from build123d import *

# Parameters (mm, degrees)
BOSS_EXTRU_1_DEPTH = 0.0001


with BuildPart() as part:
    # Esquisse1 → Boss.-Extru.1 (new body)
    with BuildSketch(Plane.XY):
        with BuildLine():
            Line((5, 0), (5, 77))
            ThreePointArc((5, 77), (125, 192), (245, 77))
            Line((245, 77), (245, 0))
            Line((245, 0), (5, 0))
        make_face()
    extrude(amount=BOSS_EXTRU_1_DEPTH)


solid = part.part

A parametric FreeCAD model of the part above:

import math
import FreeCAD as App
import Part
import Sketcher

doc = App.newDocument("Part")
body = doc.addObject("PartDesign::Body", "Body")

sketch1 = doc.addObject("Sketcher::SketchObject", "Sketch")
body.addObject(sketch1)
sketch1.AttachmentSupport = (doc.XY_Plane, [""])
sketch1.MapMode = "FlatFace"
sketch1.addGeometry(Part.LineSegment(App.Vector(5, 77, 0), App.Vector(5, 0, 0)), False)
sketch1.addGeometry(Part.LineSegment(App.Vector(5, 0, 0), App.Vector(245, 0, 0)), False)
sketch1.addGeometry(Part.LineSegment(App.Vector(245, 0, 0), App.Vector(245, 77, 0)), False)
sketch1.addGeometry(Part.ArcOfCircle(Part.Circle(App.Vector(125, 72, 0), App.Vector(0, 0, 1), 120), math.radians(2), math.radians(178)), False)
sketch1.addConstraint(Sketcher.Constraint("Coincident", 0, 2, 1, 1))
sketch1.addConstraint(Sketcher.Constraint("Coincident", 1, 2, 2, 1))
sketch1.addConstraint(Sketcher.Constraint("Coincident", 2, 2, 3, 1))
sketch1.addConstraint(Sketcher.Constraint("Coincident", 3, 2, 0, 1))
sketch1.addConstraint(Sketcher.Constraint("Vertical", 0))
sketch1.addConstraint(Sketcher.Constraint("Horizontal", 1))
sketch1.addConstraint(Sketcher.Constraint("Vertical", 2))
sketch1.addConstraint(Sketcher.Constraint("PointOnObject", 0, 2, -1))
sketch1.addConstraint(Sketcher.Constraint("Horizontal", 2, 2, 3, 2))
sketch1.addConstraint(Sketcher.Constraint("DistanceX", 1, 1, 1, 2, 240.0))
sketch1.addConstraint(Sketcher.Constraint("DistanceY", 0, 2, 0, 1, 77.0))
sketch1.addConstraint(Sketcher.Constraint("DistanceX", -1, 1, 3, 3, 125.0))
sketch1.addConstraint(Sketcher.Constraint("Radius", 3, 120.108696))
pad1 = doc.addObject("PartDesign::Pad", "Pad")
body.addObject(pad1)
pad1.Profile = sketch1
pad1.Length = 0.0001

doc.recompute()
